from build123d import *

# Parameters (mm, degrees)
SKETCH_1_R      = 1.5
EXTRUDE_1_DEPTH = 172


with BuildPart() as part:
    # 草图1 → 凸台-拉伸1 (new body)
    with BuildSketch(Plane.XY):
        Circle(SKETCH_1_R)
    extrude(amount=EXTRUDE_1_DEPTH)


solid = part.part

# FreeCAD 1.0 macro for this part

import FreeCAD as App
import Part
import Sketcher

doc = App.newDocument("Part")
params = doc.addObject("Spreadsheet::Sheet", "Params")
for row, (alias, value) in enumerate([
    ("sketch1_diameter", "3 mm"),
    ("pad1_length", "172 mm"),
], start=1):
    params.set(f"A{row}", alias)
    params.set(f"B{row}", "=" + value)
    params.setAlias(f"B{row}", alias)

body = doc.addObject("PartDesign::Body", "Body")

# Sketch on XY plane
sketch1 = doc.addObject("Sketcher::SketchObject", "Sketch")
body.addObject(sketch1)
sketch1.AttachmentSupport = (doc.XY_Plane, [""])
sketch1.MapMode = "FlatFace"
sketch1.addGeometry(Part.Circle(App.Vector(0, 0, 0), App.Vector(0, 0, 1), 1.5), False)
sketch1.addConstraint(Sketcher.Constraint("Coincident", 0, 3, -1, 1))
sketch1.addConstraint(Sketcher.Constraint("Diameter", 0, 3.0))
sketch1.setExpression("Constraints[1]", "Params.sketch1_diameter")
pad1 = doc.addObject("PartDesign::Pad", "Pad")
body.addObject(pad1)
pad1.Profile = sketch1
pad1.setExpression("Length", "Params.pad1_length")

doc.recompute()
